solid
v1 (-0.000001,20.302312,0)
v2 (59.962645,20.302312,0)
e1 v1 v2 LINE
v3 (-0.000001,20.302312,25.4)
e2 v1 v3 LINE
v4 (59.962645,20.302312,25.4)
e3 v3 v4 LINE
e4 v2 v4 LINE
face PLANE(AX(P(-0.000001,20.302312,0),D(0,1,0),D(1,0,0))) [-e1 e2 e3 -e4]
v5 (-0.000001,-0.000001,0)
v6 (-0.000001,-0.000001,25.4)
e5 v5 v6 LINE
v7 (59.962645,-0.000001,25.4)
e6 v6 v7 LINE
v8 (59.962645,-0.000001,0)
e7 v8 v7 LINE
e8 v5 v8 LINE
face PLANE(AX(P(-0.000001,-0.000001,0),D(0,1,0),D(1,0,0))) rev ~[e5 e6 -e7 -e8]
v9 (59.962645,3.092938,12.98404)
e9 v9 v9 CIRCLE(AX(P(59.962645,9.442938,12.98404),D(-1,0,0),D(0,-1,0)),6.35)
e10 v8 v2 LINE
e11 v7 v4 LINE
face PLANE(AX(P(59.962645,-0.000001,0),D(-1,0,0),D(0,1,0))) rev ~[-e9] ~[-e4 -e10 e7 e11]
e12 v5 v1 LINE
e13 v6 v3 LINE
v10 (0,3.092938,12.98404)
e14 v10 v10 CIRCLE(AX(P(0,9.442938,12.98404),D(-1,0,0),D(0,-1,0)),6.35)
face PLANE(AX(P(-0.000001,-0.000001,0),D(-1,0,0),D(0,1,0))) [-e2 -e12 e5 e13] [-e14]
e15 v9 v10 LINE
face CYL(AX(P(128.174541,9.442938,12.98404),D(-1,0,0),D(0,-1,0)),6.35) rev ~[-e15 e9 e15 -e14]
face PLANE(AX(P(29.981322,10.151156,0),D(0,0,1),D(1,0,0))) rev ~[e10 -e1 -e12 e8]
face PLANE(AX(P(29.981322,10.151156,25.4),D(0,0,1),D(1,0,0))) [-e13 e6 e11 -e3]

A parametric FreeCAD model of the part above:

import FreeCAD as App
import Part
import Sketcher

V = App.Vector
Q = App.Units.Quantity


def add_polygon(sketch, points):
    """Adds a closed chain of lines whose ends are joined by coincident constraints."""
    first, n = sketch.GeometryCount, len(points)
    for a, b in zip(points, points[1:] + points[:1]):
        sketch.addGeometry(Part.LineSegment(App.Vector(*a, 0), App.Vector(*b, 0)), False)
    for i in range(n):
        sketch.addConstraint(Sketcher.Constraint("Coincident", first + i, 2, first + (i + 1) % n, 1))

doc = App.newDocument("Part")
body = doc.addObject("PartDesign::Body", "Body")

sketch1 = doc.addObject("Sketcher::SketchObject", "Sketch")
body.addObject(sketch1)
sketch1.AttachmentSupport = (doc.XY_Plane, [""])
sketch1.MapMode = "FlatFace"
add_polygon(sketch1, [(0, 20.302312), (0, 0), (59.962645, 0), (59.962645, 20.302312)])
sketch1.addConstraint([
    Sketcher.Constraint("Vertical", 0),
    Sketcher.Constraint("Horizontal", 1),
    Sketcher.Constraint("Vertical", 2),
    Sketcher.Constraint("Horizontal", 3),
    Sketcher.Constraint("Coincident", 0, 2, -1, 1),
    Sketcher.Constraint("DistanceX", 1, 1, 1, 2, 59.962645),
    Sketcher.Constraint("DistanceY", 0, 2, 0, 1, 20.302313),
])
pad1 = doc.addObject("PartDesign::Pad", "Pad")
body.addObject(pad1)
pad1.Profile = sketch1
pad1.Length = Q("1 in")

sketch2 = doc.addObject("Sketcher::SketchObject", "Sketch001")
body.addObject(sketch2)
sketch2.AttachmentSupport = (doc.YZ_Plane, [""])
sketch2.MapMode = "FlatFace"
sketch2.AttachmentOffset = App.Placement(V(0, 0, 59.962645), App.Rotation())
sketch2.addGeometry(Part.Circle(V(9.442938, 12.98404, 0), V(0, 0, 1), 6.35), False)
sketch2.addConstraint([
    Sketcher.Constraint("Diameter", 0, Q("0.5 in")),
    Sketcher.Constraint("DistanceY", -1, 1, 0, 3, 12.98404),
    Sketcher.Constraint("DistanceX", -1, 1, 0, 3, 9.442938),
])
doc.recompute()
hole = doc.addObject("PartDesign::Hole", "Hole")
body.addObject(hole)
hole.Profile = sketch2
hole.ThreadType = "None"
hole.Diameter = Q("0.5 in")
hole.DepthType = "ThroughAll"

doc.recompute()
